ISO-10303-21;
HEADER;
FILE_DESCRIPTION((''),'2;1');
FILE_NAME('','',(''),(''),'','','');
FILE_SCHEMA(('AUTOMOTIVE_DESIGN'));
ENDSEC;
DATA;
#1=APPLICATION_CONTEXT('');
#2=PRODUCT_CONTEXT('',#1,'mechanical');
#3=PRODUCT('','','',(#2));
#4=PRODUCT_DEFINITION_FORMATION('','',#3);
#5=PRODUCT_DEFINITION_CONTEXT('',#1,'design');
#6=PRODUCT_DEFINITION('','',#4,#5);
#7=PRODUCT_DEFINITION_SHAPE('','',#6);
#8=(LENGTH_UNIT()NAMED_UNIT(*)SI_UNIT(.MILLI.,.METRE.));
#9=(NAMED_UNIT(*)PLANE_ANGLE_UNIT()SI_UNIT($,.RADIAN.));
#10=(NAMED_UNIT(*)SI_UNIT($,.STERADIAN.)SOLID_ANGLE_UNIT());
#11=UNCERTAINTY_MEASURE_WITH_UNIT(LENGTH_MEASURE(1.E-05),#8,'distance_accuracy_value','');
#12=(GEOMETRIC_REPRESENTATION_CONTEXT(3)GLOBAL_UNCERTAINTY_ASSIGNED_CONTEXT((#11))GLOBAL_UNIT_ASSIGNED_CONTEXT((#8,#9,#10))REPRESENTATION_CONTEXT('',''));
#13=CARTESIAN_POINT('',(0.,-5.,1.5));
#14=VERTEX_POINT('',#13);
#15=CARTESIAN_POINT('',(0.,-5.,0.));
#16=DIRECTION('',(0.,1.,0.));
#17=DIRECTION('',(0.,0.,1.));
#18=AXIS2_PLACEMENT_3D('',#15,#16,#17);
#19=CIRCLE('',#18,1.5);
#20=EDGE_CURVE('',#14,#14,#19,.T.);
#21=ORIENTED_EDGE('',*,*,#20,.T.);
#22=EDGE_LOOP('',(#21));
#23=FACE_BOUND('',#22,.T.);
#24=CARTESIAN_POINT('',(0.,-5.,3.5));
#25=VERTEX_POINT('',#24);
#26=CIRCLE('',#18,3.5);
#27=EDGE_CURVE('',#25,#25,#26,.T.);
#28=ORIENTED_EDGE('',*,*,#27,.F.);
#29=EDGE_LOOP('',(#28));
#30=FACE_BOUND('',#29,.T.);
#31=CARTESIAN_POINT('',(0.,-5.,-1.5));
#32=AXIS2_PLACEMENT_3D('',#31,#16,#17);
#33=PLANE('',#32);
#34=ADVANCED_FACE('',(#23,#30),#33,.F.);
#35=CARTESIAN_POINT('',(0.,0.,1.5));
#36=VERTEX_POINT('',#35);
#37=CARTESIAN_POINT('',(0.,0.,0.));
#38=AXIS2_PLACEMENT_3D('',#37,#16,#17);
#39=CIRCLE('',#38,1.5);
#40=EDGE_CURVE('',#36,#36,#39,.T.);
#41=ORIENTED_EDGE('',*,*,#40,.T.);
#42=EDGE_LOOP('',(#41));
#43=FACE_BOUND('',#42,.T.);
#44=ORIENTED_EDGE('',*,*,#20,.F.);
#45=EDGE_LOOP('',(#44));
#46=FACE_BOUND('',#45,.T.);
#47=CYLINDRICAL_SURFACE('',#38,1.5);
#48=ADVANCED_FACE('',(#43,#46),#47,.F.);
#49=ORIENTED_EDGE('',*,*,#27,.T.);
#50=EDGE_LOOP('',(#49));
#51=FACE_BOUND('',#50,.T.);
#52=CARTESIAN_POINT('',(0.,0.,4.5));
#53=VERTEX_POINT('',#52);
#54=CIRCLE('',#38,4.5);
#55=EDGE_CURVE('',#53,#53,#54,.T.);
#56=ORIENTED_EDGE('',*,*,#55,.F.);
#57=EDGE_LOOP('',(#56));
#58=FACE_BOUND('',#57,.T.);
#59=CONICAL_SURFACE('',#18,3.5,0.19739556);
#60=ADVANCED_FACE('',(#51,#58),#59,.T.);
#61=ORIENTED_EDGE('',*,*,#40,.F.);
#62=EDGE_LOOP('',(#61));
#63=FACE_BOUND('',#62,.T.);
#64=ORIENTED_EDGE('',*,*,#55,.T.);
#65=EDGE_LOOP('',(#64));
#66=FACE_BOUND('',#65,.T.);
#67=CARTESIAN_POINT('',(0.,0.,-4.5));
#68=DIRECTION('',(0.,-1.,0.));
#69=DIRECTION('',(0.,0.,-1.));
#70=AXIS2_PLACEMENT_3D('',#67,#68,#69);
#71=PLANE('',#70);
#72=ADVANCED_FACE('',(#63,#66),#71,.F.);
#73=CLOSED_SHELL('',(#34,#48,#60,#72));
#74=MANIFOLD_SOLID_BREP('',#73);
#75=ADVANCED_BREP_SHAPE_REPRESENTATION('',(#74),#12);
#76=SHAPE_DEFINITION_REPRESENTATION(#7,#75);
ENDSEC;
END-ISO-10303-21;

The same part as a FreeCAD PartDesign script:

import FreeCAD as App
import Part
import Sketcher

V = App.Vector

doc = App.newDocument("Part")
body = doc.addObject("PartDesign::Body", "Body")

sketch1 = doc.addObject("Sketcher::SketchObject", "Sketch")
body.addObject(sketch1)
sketch1.AttachmentSupport = (doc.YZ_Plane, [""])
sketch1.MapMode = "FlatFace"
sketch1.addGeometry(Part.LineSegment(V(0, -1.5, 0), V(-5, -1.5, 0)), False)
sketch1.addGeometry(Part.LineSegment(V(-5, -1.5, 0), V(-5, -3.5, 0)), False)
sketch1.addGeometry(Part.LineSegment(V(-5, -3.5, 0), V(0, -4.5, 0)), False)
sketch1.addGeometry(Part.LineSegment(V(0, -4.5, 0), V(0, -1.5, 0)), False)
sketch1.addConstraint(Sketcher.Constraint("Coincident", 0, 2, 1, 1))
sketch1.addConstraint(Sketcher.Constraint("Coincident", 1, 2, 2, 1))
sketch1.addConstraint(Sketcher.Constraint("Coincident", 2, 2, 3, 1))
sketch1.addConstraint(Sketcher.Constraint("Coincident", 3, 2, 0, 1))
sketch1.addConstraint(Sketcher.Constraint("Horizontal", 0))
sketch1.addConstraint(Sketcher.Constraint("Vertical", 1))
sketch1.addConstraint(Sketcher.Constraint("Vertical", 3))
sketch1.addConstraint(Sketcher.Constraint("PointOnObject", 2, 2, -2))
sketch1.addConstraint(Sketcher.Constraint("DistanceX", 0, 2, 0, 1, 5.0))
sketch1.addConstraint(Sketcher.Constraint("DistanceY", 1, 2, 1, 1, 2.0))
sketch1.addConstraint(Sketcher.Constraint("DistanceY", 3, 1, 3, 2, 3.0))
sketch1.addConstraint(Sketcher.Constraint("DistanceY", 0, 2, -1, 1, 1.5))
revolution = doc.addObject("PartDesign::Revolution", "Revolution")
body.addObject(revolution)
revolution.Profile = sketch1
revolution.ReferenceAxis = (sketch1, ["H_Axis"])
revolution.Angle = 360

doc.recompute()
